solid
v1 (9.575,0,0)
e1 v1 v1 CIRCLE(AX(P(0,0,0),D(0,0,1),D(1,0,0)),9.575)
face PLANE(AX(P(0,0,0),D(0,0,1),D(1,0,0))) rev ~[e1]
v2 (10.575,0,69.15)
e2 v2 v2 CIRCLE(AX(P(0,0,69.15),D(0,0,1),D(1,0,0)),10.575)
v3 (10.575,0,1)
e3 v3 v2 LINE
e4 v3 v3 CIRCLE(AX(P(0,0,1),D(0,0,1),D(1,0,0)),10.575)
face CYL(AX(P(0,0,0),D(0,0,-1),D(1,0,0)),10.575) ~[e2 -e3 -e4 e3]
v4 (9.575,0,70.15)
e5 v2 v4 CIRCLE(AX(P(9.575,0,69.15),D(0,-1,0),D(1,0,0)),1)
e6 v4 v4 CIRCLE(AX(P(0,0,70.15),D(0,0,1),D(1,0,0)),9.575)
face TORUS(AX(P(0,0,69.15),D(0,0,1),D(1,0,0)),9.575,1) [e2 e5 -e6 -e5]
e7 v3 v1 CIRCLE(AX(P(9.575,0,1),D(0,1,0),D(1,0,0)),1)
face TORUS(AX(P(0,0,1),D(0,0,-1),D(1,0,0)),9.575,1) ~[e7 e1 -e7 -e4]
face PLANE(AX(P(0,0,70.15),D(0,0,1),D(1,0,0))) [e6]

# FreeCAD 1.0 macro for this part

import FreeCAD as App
import Part
import Sketcher


def edges_at(feature, points):
    """Names of the edges that pass closest to the given points."""
    edges = feature.Shape.Edges
    near = lambda p: min(range(len(edges)), key=lambda i: edges[i].distToShape(Part.Vertex(*p))[0])
    return sorted({f"Edge{near(p) + 1}" for p in points})

doc = App.newDocument("Part")
body = doc.addObject("PartDesign::Body", "Body")

# Sketch on XY plane
sketch1 = body.newObject("Sketcher::SketchObject", "Sketch")
sketch1.AttachmentSupport = (doc.getObject("XY_Plane"), [""])
sketch1.MapMode = "FlatFace"
sketch1.addGeometry(Part.Circle(App.Vector(0, 0, 0), App.Vector(0, 0, 1), 10.575), False)
sketch1.addConstraint(Sketcher.Constraint("Coincident", 0, 3, -1, 1))
sketch1.addConstraint(Sketcher.Constraint("Diameter", 0, 21.15))
pad1 = body.newObject("PartDesign::Pad", "Pad")
pad1.Profile = sketch1
pad1.Length = 70.15
doc.recompute()

fillet = body.newObject("PartDesign::Fillet", "Fillet")
fillet.Base = (pad1, edges_at(pad1, [(-10.575, 0, 70.15), (-10.575, 0, 0)]))
fillet.Radius = 1

doc.recompute()
